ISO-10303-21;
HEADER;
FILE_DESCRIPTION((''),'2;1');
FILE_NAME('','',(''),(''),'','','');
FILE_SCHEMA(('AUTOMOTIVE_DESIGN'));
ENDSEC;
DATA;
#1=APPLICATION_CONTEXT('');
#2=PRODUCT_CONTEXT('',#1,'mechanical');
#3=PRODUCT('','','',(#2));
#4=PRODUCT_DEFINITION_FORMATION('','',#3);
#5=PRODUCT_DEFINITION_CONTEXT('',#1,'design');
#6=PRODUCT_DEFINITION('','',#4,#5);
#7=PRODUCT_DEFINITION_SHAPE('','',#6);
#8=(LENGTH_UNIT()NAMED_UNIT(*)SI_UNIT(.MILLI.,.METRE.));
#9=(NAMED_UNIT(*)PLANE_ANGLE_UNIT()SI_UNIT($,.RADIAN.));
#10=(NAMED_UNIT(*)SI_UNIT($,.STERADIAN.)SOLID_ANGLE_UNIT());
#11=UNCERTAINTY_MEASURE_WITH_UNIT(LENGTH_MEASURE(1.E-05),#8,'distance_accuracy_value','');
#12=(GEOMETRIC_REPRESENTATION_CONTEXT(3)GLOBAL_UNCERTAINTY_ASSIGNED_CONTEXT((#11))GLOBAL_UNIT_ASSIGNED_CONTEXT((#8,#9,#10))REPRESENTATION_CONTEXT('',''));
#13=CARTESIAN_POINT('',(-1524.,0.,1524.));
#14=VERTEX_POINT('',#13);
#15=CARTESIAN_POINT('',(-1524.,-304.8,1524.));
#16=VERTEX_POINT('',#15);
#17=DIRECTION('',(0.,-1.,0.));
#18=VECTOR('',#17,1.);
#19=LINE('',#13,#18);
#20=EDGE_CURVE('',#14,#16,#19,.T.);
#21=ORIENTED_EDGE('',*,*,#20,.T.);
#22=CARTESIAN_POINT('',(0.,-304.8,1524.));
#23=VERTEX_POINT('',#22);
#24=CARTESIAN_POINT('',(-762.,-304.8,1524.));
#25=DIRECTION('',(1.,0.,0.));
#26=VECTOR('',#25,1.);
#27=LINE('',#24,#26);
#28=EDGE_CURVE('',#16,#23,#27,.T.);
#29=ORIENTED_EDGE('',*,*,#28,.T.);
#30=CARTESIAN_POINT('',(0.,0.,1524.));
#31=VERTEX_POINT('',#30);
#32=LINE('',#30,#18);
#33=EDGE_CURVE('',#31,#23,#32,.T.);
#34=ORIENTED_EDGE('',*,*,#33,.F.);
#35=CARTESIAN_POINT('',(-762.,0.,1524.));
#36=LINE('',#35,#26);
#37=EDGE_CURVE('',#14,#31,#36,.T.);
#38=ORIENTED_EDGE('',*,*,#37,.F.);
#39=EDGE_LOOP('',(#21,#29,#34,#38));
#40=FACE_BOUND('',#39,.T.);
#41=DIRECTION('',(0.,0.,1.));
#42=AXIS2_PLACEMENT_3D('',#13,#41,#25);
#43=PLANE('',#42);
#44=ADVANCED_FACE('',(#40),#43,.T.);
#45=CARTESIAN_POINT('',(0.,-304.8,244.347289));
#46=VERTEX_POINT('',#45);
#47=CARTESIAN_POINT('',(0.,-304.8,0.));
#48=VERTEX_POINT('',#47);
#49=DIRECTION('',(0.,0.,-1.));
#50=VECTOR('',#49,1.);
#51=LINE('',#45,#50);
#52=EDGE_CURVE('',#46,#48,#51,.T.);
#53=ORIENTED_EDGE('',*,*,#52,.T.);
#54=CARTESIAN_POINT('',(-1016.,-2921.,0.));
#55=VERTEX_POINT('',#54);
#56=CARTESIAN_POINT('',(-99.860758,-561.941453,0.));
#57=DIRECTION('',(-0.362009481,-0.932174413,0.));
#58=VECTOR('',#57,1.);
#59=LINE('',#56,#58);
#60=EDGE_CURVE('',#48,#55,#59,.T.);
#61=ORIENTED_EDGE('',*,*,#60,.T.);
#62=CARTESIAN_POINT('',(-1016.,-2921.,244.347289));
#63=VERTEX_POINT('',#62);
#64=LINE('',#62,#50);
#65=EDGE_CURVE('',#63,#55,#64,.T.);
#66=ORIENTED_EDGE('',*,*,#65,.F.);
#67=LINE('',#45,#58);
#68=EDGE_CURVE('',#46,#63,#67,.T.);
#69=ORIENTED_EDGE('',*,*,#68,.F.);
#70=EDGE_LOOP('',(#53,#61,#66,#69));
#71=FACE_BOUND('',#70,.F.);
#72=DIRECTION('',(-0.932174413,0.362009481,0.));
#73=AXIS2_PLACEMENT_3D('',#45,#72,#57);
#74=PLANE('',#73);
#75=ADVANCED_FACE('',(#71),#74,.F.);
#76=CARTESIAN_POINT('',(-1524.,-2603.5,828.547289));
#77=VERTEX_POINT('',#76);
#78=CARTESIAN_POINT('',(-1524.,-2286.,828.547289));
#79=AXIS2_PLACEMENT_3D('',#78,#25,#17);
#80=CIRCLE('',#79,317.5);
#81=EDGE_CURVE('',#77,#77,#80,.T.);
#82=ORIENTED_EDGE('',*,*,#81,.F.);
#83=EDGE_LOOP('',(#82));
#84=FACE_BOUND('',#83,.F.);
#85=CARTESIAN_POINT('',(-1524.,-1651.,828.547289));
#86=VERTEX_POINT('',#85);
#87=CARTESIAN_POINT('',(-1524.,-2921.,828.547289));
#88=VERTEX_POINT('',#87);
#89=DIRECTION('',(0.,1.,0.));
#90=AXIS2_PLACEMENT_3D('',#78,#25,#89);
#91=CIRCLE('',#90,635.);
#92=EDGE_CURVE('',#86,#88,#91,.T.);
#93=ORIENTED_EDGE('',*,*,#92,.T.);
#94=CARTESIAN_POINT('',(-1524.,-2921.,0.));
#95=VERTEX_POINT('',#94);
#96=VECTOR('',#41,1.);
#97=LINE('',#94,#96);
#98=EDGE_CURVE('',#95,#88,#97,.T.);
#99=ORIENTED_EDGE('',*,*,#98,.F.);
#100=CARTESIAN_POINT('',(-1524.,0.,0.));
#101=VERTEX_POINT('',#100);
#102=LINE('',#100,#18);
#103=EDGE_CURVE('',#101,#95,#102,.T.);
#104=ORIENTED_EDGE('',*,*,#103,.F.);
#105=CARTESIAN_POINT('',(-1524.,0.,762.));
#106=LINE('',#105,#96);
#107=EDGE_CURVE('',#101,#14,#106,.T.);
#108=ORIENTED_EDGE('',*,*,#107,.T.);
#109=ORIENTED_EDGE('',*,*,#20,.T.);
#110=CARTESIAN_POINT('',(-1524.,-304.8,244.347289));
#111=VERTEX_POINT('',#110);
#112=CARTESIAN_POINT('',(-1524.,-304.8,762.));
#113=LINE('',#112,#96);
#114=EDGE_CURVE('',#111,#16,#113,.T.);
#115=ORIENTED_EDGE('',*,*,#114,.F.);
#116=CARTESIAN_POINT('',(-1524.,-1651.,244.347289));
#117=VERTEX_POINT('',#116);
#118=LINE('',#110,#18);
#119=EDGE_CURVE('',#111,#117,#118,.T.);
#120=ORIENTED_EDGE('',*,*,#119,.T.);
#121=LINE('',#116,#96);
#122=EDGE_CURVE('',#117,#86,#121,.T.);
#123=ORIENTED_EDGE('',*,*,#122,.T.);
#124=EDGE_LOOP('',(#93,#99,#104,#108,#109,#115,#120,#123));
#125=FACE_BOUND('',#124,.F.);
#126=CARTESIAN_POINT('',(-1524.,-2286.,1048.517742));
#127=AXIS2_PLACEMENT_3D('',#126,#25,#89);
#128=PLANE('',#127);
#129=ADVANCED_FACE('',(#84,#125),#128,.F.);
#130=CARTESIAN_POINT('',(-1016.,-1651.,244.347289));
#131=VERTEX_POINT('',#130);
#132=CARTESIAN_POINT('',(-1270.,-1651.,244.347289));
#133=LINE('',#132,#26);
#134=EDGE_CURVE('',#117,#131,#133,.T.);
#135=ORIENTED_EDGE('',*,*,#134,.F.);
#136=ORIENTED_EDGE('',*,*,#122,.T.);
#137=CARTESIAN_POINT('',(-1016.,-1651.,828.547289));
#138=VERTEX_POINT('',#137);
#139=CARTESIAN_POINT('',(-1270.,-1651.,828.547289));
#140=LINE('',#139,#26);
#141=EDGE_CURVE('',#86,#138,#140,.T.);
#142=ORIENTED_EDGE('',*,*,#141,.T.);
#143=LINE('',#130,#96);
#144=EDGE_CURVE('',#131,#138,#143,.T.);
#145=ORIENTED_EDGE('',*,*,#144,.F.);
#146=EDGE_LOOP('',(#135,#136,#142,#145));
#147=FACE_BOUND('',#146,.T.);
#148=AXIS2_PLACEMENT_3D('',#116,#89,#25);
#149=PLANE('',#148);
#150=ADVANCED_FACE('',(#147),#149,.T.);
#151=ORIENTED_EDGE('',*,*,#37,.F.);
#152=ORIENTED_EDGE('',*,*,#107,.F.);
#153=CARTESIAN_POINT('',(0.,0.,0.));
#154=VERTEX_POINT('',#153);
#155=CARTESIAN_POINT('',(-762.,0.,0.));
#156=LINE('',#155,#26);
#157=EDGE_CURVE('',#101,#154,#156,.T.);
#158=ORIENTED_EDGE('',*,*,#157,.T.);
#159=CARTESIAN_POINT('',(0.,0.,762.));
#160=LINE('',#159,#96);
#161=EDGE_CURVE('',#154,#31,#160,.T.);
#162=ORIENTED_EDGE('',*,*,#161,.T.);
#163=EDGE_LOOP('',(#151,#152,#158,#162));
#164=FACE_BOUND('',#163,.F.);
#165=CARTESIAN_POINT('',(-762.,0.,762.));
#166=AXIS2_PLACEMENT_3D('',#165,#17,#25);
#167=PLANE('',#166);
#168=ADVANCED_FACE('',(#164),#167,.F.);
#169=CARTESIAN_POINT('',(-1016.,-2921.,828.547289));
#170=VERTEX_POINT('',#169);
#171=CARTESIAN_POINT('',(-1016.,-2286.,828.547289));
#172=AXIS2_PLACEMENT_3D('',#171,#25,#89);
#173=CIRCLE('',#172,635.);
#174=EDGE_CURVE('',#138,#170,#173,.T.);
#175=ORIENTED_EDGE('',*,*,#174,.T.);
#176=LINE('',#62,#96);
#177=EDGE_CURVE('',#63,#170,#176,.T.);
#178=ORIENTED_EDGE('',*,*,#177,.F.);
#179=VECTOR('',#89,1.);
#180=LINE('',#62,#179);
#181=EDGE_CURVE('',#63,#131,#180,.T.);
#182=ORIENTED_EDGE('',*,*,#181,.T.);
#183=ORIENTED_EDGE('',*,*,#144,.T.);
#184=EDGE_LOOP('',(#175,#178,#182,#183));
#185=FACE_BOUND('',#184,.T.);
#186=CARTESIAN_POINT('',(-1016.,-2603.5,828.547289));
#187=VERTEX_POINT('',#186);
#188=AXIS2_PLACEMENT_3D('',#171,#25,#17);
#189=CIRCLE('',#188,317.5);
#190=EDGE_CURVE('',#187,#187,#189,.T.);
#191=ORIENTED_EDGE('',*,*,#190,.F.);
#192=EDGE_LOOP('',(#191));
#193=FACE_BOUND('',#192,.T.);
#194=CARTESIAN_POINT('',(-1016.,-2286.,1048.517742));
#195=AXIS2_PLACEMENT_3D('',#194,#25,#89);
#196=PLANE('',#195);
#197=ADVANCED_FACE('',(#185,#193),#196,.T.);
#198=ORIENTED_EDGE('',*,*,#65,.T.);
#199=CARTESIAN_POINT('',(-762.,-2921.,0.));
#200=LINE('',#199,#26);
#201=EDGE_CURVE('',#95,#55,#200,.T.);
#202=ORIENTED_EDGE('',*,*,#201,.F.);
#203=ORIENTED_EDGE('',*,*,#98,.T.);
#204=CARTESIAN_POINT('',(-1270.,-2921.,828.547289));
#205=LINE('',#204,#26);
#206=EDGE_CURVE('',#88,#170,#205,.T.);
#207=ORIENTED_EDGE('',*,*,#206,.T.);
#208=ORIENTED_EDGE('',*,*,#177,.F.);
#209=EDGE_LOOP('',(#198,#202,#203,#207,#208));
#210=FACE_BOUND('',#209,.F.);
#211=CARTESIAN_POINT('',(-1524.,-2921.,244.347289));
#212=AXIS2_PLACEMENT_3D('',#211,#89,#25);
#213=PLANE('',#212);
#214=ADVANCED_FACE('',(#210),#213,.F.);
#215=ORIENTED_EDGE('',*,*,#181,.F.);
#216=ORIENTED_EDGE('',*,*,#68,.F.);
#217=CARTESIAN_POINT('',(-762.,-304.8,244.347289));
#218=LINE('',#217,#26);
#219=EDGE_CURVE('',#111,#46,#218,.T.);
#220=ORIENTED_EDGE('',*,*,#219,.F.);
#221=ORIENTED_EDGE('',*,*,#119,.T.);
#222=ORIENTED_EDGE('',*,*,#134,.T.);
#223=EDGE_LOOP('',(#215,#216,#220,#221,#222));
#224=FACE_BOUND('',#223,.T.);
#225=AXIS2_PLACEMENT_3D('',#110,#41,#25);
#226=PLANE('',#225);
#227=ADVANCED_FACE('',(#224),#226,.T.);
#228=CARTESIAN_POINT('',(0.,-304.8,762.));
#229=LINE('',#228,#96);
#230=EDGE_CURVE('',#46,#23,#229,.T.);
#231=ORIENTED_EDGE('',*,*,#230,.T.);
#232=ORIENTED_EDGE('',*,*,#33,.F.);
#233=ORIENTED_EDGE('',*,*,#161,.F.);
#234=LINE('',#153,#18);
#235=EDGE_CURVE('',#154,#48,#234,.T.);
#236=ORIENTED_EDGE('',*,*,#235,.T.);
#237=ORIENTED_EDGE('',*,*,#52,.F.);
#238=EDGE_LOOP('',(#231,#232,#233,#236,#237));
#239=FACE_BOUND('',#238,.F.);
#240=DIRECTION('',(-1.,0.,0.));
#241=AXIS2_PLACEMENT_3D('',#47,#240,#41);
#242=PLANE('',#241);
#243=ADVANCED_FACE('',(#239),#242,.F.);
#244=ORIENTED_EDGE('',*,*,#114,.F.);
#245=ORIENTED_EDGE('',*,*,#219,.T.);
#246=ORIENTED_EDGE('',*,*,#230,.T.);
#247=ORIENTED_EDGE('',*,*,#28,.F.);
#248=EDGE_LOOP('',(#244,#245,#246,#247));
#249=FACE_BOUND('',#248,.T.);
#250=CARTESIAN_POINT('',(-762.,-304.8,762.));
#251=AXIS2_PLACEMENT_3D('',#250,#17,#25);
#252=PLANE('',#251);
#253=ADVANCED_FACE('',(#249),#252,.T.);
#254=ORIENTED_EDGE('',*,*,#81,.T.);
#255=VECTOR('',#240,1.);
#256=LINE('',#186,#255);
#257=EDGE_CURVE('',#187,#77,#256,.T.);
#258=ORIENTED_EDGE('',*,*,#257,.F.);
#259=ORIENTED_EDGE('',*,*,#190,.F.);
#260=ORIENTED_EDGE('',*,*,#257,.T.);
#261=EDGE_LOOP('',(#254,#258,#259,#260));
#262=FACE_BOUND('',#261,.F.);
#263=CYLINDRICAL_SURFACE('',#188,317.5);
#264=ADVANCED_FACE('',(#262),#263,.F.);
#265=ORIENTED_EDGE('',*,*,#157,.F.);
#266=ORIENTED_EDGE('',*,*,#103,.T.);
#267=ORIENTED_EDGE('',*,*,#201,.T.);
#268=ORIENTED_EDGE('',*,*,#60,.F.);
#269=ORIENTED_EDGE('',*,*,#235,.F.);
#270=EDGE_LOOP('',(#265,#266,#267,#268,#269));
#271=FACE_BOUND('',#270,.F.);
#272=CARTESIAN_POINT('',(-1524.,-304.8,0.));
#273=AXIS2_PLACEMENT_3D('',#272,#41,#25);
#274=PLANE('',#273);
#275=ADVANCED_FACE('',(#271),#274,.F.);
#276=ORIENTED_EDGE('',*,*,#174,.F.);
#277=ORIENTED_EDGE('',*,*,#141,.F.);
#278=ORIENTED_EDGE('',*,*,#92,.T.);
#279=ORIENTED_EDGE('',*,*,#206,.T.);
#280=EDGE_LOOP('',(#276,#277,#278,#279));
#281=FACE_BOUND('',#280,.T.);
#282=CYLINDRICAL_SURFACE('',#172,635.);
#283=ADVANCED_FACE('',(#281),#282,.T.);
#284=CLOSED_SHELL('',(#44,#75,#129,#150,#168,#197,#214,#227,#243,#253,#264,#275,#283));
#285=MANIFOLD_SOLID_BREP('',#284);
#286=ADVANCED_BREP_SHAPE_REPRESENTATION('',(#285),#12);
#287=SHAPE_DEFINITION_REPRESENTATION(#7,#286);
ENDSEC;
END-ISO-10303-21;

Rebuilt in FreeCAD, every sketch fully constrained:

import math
import FreeCAD as App
import Part
import Sketcher
from FreeCAD import Vector
Q = App.Units.Quantity


def add_polygon(sketch, points):
    """Adds a closed chain of lines whose ends are joined by coincident constraints."""
    first, n = sketch.GeometryCount, len(points)
    for a, b in zip(points, points[1:] + points[:1]):
        sketch.addGeometry(Part.LineSegment(App.Vector(*a, 0), App.Vector(*b, 0)), False)
    for i in range(n):
        sketch.addConstraint(Sketcher.Constraint("Coincident", first + i, 2, first + (i + 1) % n, 1))

doc = App.newDocument("Part")
params = doc.addObject("Spreadsheet::Sheet", "Params")
for row, (alias, value) in enumerate([
    ("sketch1_width", "60 in"),
    ("pad1_length", "12 in"),
    ("sketch2_width", "60 in"),
    ("pad2_length", "103 in"),
    ("sketch3_width", "20 in"),
    ("sketch3_height", "50 in"),
    ("pad3_length", "23 in"),
    ("sketch4_radius", "25 in"),
    ("pad4_length", "20 in"),
    ("sketch5_diameter", "25 in"),
    ("pocket1_length", "20 in"),
    ("sketch6_width", "40 in"),
    ("sketch6_height", "103 in"),
    ("pocket2_length", "12 in"),
], start=1):
    params.set(f"A{row}", alias)
    params.set(f"B{row}", "=" + value)
    params.setAlias(f"B{row}", alias)

body = doc.addObject("PartDesign::Body", "Body")

# Sketch on XZ plane
sketch1 = body.newObject("Sketcher::SketchObject", "Sketch")
sketch1.AttachmentSupport = (doc.getObject("XZ_Plane"), [""])
sketch1.MapMode = "FlatFace"
add_polygon(sketch1, [(-1524, 1524), (-1524, 0), (0, 0), (0, 1524)])  # lines 0-3
sketch1.addConstraint(Sketcher.Constraint("Vertical", 0))
sketch1.addConstraint(Sketcher.Constraint("Horizontal", 1))
sketch1.addConstraint(Sketcher.Constraint("Vertical", 2))
sketch1.addConstraint(Sketcher.Constraint("Horizontal", 3))
sketch1.addConstraint(Sketcher.Constraint("Coincident", 1, 2, -1, 1))
sketch1.addConstraint(Sketcher.Constraint("Equal", 3, 0))
sketch1.addConstraint(Sketcher.Constraint("DistanceX", 1, 1, 1, 2, Q("60 in")))
sketch1.setExpression("Constraints[10]", "Params.sketch1_width")
pad1 = body.newObject("PartDesign::Pad", "Pad")
pad1.Profile = sketch1
pad1.setExpression("Length", "Params.pad1_length")

# Sketch on XZ plane
sketch2 = body.newObject("Sketcher::SketchObject", "Sketch001")
sketch2.AttachmentSupport = (doc.getObject("XZ_Plane"), [""])
sketch2.MapMode = "FlatFace"
sketch2.AttachmentOffset = App.Placement(Vector(0, 0, 12 * 25.4), App.Rotation())
add_polygon(sketch2, [(-1524, 244.347289), (-1524, 0), (0, 0), (0, 244.347289)])  # lines 0-3
sketch2.addConstraint(Sketcher.Constraint("Vertical", 0))
sketch2.addConstraint(Sketcher.Constraint("Horizontal", 1))
sketch2.addConstraint(Sketcher.Constraint("Vertical", 2))
sketch2.addConstraint(Sketcher.Constraint("Horizontal", 3))
sketch2.addConstraint(Sketcher.Constraint("Coincident", 1, 2, -1, 1))
sketch2.addConstraint(Sketcher.Constraint("DistanceX", 1, 1, 1, 2, Q("60 in")))
sketch2.addConstraint(Sketcher.Constraint("DistanceY", 0, 2, 0, 1, 244.347289))
sketch2.setExpression("Constraints[9]", "Params.sketch2_width")
pad2 = body.newObject("PartDesign::Pad", "Pad001")
pad2.Profile = sketch2
pad2.setExpression("Length", "Params.pad2_length")

# Sketch on XY plane
sketch3 = body.newObject("Sketcher::SketchObject", "Sketch002")
sketch3.AttachmentSupport = (doc.getObject("XY_Plane"), [""])
sketch3.MapMode = "FlatFace"
sketch3.AttachmentOffset = App.Placement(Vector(0, 0, 244.347289), App.Rotation())
add_polygon(sketch3, [(-1524, -1651), (-1524, -2921), (-1016, -2921), (-1016, -1651)])  # lines 0-3
sketch3.addConstraint(Sketcher.Constraint("Vertical", 0))
sketch3.addConstraint(Sketcher.Constraint("Horizontal", 1))
sketch3.addConstraint(Sketcher.Constraint("Vertical", 2))
sketch3.addConstraint(Sketcher.Constraint("Horizontal", 3))
sketch3.addConstraint(Sketcher.Constraint("DistanceX", 1, 1, 1, 2, Q("20 in")))
sketch3.addConstraint(Sketcher.Constraint("DistanceY", 0, 2, 0, 1, Q("50 in")))
sketch3.addConstraint(Sketcher.Constraint("DistanceX", 0, 2, -1, 1, Q("60 in")))
sketch3.addConstraint(Sketcher.Constraint("DistanceY", 0, 2, -1, 1, Q("115 in")))
sketch3.setExpression("Constraints[8]", "Params.sketch3_width")
sketch3.setExpression("Constraints[9]", "Params.sketch3_height")
pad3 = body.newObject("PartDesign::Pad", "Pad002")
pad3.Profile = sketch3
pad3.setExpression("Length", "Params.pad3_length")

# Sketch on YZ plane
sketch4 = body.newObject("Sketcher::SketchObject", "Sketch003")
sketch4.AttachmentSupport = (doc.getObject("YZ_Plane"), [""])
sketch4.MapMode = "FlatFace"
sketch4.AttachmentOffset = App.Placement(Vector(0, 0, -40 * 25.4), App.Rotation())
sketch4.addGeometry(Part.LineSegment(Vector(-2921, 828.547289, 0), Vector(-1651, 828.547289, 0)), False)
sketch4.addGeometry(Part.ArcOfCircle(Part.Circle(Vector(-2286, 828.547289, 0), Vector(0, 0, 1), 635), math.radians(0), math.radians(180)), False)
sketch4.addGeometry(Part.ArcOfCircle(Part.Circle(Vector(-2286, 828.547289, 0), Vector(0, 0, 1), 635), math.radians(-113.073918), math.radians(-66.926082)), False)
sketch4.addGeometry(Part.LineSegment(Vector(-2037.131842, 244.347289, 0), Vector(-2534.868158, 244.347289, 0)), False)
sketch4.addConstraint(Sketcher.Constraint("Coincident", 0, 1, 1, 2))
sketch4.addConstraint(Sketcher.Constraint("Coincident", 1, 1, 0, 2))
sketch4.addConstraint(Sketcher.Constraint("Coincident", 2, 1, 3, 2))
sketch4.addConstraint(Sketcher.Constraint("Coincident", 3, 1, 2, 2))
sketch4.addConstraint(Sketcher.Constraint("Horizontal", 0))
sketch4.addConstraint(Sketcher.Constraint("Horizontal", 3))
sketch4.addConstraint(Sketcher.Constraint("Coincident", 2, 3, 1, 3))
sketch4.addConstraint(Sketcher.Constraint("Equal", 1, 2))
sketch4.addConstraint(Sketcher.Constraint("Horizontal", 2, 3, 0, 1))
sketch4.addConstraint(Sketcher.Constraint("Radius", 1, Q("25 in")))
sketch4.addConstraint(Sketcher.Constraint("DistanceX", 1, 3, -1, 1, Q("90 in")))
sketch4.addConstraint(Sketcher.Constraint("DistanceY", 3, 1, 2, 3, Q("23 in")))
sketch4.addConstraint(Sketcher.Constraint("DistanceY", -1, 1, 1, 3, 828.547289))
sketch4.setExpression("Constraints[9]", "Params.sketch4_radius")
pad4 = body.newObject("PartDesign::Pad", "Pad003")
pad4.Profile = sketch4
pad4.setExpression("Length", "Params.pad4_length")
pad4.Reversed = True

# Sketch on YZ plane
sketch5 = body.newObject("Sketcher::SketchObject", "Sketch004")
sketch5.AttachmentSupport = (doc.getObject("YZ_Plane"), [""])
sketch5.MapMode = "FlatFace"
sketch5.AttachmentOffset = App.Placement(Vector(0, 0, -40 * 25.4), App.Rotation())
sketch5.addGeometry(Part.Circle(Vector(-2286, 828.547289, 0), Vector(0, 0, 1), 317.5), False)
sketch5.addConstraint(Sketcher.Constraint("Diameter", 0, Q("25 in")))
sketch5.addConstraint(Sketcher.Constraint("DistanceX", 0, 3, -1, 1, Q("90 in")))
sketch5.addConstraint(Sketcher.Constraint("DistanceY", -1, 1, 0, 3, 828.547289))
sketch5.setExpression("Constraints[0]", "Params.sketch5_diameter")
pocket1 = body.newObject("PartDesign::Pocket", "Pocket")
pocket1.Profile = sketch5
pocket1.setExpression("Length", "Params.pocket1_length")

# Sketch on XY plane
sketch6 = body.newObject("Sketcher::SketchObject", "Sketch005")
sketch6.AttachmentSupport = (doc.getObject("XY_Plane"), [""])
sketch6.MapMode = "FlatFace"
sketch6.AttachmentOffset = App.Placement(Vector(0, 0, 244.347289), App.Rotation())
add_polygon(sketch6, [(0, -304.8), (-1016, -2921), (0, -2921)])  # lines 0-2
sketch6.addConstraint(Sketcher.Constraint("Horizontal", 1))
sketch6.addConstraint(Sketcher.Constraint("Vertical", 2))
sketch6.addConstraint(Sketcher.Constraint("PointOnObject", 1, 2, -2))
sketch6.addConstraint(Sketcher.Constraint("DistanceX", 1, 1, 1, 2, Q("40 in")))
sketch6.addConstraint(Sketcher.Constraint("DistanceY", 2, 1, 2, 2, Q("103 in")))
sketch6.addConstraint(Sketcher.Constraint("DistanceY", 0, 2, -1, 1, Q("115 in")))
sketch6.setExpression("Constraints[6]", "Params.sketch6_width")
sketch6.setExpression("Constraints[7]", "Params.sketch6_height")
pocket2 = body.newObject("PartDesign::Pocket", "Pocket001")
pocket2.Profile = sketch6
pocket2.setExpression("Length", "Params.pocket2_length")

doc.recompute()
